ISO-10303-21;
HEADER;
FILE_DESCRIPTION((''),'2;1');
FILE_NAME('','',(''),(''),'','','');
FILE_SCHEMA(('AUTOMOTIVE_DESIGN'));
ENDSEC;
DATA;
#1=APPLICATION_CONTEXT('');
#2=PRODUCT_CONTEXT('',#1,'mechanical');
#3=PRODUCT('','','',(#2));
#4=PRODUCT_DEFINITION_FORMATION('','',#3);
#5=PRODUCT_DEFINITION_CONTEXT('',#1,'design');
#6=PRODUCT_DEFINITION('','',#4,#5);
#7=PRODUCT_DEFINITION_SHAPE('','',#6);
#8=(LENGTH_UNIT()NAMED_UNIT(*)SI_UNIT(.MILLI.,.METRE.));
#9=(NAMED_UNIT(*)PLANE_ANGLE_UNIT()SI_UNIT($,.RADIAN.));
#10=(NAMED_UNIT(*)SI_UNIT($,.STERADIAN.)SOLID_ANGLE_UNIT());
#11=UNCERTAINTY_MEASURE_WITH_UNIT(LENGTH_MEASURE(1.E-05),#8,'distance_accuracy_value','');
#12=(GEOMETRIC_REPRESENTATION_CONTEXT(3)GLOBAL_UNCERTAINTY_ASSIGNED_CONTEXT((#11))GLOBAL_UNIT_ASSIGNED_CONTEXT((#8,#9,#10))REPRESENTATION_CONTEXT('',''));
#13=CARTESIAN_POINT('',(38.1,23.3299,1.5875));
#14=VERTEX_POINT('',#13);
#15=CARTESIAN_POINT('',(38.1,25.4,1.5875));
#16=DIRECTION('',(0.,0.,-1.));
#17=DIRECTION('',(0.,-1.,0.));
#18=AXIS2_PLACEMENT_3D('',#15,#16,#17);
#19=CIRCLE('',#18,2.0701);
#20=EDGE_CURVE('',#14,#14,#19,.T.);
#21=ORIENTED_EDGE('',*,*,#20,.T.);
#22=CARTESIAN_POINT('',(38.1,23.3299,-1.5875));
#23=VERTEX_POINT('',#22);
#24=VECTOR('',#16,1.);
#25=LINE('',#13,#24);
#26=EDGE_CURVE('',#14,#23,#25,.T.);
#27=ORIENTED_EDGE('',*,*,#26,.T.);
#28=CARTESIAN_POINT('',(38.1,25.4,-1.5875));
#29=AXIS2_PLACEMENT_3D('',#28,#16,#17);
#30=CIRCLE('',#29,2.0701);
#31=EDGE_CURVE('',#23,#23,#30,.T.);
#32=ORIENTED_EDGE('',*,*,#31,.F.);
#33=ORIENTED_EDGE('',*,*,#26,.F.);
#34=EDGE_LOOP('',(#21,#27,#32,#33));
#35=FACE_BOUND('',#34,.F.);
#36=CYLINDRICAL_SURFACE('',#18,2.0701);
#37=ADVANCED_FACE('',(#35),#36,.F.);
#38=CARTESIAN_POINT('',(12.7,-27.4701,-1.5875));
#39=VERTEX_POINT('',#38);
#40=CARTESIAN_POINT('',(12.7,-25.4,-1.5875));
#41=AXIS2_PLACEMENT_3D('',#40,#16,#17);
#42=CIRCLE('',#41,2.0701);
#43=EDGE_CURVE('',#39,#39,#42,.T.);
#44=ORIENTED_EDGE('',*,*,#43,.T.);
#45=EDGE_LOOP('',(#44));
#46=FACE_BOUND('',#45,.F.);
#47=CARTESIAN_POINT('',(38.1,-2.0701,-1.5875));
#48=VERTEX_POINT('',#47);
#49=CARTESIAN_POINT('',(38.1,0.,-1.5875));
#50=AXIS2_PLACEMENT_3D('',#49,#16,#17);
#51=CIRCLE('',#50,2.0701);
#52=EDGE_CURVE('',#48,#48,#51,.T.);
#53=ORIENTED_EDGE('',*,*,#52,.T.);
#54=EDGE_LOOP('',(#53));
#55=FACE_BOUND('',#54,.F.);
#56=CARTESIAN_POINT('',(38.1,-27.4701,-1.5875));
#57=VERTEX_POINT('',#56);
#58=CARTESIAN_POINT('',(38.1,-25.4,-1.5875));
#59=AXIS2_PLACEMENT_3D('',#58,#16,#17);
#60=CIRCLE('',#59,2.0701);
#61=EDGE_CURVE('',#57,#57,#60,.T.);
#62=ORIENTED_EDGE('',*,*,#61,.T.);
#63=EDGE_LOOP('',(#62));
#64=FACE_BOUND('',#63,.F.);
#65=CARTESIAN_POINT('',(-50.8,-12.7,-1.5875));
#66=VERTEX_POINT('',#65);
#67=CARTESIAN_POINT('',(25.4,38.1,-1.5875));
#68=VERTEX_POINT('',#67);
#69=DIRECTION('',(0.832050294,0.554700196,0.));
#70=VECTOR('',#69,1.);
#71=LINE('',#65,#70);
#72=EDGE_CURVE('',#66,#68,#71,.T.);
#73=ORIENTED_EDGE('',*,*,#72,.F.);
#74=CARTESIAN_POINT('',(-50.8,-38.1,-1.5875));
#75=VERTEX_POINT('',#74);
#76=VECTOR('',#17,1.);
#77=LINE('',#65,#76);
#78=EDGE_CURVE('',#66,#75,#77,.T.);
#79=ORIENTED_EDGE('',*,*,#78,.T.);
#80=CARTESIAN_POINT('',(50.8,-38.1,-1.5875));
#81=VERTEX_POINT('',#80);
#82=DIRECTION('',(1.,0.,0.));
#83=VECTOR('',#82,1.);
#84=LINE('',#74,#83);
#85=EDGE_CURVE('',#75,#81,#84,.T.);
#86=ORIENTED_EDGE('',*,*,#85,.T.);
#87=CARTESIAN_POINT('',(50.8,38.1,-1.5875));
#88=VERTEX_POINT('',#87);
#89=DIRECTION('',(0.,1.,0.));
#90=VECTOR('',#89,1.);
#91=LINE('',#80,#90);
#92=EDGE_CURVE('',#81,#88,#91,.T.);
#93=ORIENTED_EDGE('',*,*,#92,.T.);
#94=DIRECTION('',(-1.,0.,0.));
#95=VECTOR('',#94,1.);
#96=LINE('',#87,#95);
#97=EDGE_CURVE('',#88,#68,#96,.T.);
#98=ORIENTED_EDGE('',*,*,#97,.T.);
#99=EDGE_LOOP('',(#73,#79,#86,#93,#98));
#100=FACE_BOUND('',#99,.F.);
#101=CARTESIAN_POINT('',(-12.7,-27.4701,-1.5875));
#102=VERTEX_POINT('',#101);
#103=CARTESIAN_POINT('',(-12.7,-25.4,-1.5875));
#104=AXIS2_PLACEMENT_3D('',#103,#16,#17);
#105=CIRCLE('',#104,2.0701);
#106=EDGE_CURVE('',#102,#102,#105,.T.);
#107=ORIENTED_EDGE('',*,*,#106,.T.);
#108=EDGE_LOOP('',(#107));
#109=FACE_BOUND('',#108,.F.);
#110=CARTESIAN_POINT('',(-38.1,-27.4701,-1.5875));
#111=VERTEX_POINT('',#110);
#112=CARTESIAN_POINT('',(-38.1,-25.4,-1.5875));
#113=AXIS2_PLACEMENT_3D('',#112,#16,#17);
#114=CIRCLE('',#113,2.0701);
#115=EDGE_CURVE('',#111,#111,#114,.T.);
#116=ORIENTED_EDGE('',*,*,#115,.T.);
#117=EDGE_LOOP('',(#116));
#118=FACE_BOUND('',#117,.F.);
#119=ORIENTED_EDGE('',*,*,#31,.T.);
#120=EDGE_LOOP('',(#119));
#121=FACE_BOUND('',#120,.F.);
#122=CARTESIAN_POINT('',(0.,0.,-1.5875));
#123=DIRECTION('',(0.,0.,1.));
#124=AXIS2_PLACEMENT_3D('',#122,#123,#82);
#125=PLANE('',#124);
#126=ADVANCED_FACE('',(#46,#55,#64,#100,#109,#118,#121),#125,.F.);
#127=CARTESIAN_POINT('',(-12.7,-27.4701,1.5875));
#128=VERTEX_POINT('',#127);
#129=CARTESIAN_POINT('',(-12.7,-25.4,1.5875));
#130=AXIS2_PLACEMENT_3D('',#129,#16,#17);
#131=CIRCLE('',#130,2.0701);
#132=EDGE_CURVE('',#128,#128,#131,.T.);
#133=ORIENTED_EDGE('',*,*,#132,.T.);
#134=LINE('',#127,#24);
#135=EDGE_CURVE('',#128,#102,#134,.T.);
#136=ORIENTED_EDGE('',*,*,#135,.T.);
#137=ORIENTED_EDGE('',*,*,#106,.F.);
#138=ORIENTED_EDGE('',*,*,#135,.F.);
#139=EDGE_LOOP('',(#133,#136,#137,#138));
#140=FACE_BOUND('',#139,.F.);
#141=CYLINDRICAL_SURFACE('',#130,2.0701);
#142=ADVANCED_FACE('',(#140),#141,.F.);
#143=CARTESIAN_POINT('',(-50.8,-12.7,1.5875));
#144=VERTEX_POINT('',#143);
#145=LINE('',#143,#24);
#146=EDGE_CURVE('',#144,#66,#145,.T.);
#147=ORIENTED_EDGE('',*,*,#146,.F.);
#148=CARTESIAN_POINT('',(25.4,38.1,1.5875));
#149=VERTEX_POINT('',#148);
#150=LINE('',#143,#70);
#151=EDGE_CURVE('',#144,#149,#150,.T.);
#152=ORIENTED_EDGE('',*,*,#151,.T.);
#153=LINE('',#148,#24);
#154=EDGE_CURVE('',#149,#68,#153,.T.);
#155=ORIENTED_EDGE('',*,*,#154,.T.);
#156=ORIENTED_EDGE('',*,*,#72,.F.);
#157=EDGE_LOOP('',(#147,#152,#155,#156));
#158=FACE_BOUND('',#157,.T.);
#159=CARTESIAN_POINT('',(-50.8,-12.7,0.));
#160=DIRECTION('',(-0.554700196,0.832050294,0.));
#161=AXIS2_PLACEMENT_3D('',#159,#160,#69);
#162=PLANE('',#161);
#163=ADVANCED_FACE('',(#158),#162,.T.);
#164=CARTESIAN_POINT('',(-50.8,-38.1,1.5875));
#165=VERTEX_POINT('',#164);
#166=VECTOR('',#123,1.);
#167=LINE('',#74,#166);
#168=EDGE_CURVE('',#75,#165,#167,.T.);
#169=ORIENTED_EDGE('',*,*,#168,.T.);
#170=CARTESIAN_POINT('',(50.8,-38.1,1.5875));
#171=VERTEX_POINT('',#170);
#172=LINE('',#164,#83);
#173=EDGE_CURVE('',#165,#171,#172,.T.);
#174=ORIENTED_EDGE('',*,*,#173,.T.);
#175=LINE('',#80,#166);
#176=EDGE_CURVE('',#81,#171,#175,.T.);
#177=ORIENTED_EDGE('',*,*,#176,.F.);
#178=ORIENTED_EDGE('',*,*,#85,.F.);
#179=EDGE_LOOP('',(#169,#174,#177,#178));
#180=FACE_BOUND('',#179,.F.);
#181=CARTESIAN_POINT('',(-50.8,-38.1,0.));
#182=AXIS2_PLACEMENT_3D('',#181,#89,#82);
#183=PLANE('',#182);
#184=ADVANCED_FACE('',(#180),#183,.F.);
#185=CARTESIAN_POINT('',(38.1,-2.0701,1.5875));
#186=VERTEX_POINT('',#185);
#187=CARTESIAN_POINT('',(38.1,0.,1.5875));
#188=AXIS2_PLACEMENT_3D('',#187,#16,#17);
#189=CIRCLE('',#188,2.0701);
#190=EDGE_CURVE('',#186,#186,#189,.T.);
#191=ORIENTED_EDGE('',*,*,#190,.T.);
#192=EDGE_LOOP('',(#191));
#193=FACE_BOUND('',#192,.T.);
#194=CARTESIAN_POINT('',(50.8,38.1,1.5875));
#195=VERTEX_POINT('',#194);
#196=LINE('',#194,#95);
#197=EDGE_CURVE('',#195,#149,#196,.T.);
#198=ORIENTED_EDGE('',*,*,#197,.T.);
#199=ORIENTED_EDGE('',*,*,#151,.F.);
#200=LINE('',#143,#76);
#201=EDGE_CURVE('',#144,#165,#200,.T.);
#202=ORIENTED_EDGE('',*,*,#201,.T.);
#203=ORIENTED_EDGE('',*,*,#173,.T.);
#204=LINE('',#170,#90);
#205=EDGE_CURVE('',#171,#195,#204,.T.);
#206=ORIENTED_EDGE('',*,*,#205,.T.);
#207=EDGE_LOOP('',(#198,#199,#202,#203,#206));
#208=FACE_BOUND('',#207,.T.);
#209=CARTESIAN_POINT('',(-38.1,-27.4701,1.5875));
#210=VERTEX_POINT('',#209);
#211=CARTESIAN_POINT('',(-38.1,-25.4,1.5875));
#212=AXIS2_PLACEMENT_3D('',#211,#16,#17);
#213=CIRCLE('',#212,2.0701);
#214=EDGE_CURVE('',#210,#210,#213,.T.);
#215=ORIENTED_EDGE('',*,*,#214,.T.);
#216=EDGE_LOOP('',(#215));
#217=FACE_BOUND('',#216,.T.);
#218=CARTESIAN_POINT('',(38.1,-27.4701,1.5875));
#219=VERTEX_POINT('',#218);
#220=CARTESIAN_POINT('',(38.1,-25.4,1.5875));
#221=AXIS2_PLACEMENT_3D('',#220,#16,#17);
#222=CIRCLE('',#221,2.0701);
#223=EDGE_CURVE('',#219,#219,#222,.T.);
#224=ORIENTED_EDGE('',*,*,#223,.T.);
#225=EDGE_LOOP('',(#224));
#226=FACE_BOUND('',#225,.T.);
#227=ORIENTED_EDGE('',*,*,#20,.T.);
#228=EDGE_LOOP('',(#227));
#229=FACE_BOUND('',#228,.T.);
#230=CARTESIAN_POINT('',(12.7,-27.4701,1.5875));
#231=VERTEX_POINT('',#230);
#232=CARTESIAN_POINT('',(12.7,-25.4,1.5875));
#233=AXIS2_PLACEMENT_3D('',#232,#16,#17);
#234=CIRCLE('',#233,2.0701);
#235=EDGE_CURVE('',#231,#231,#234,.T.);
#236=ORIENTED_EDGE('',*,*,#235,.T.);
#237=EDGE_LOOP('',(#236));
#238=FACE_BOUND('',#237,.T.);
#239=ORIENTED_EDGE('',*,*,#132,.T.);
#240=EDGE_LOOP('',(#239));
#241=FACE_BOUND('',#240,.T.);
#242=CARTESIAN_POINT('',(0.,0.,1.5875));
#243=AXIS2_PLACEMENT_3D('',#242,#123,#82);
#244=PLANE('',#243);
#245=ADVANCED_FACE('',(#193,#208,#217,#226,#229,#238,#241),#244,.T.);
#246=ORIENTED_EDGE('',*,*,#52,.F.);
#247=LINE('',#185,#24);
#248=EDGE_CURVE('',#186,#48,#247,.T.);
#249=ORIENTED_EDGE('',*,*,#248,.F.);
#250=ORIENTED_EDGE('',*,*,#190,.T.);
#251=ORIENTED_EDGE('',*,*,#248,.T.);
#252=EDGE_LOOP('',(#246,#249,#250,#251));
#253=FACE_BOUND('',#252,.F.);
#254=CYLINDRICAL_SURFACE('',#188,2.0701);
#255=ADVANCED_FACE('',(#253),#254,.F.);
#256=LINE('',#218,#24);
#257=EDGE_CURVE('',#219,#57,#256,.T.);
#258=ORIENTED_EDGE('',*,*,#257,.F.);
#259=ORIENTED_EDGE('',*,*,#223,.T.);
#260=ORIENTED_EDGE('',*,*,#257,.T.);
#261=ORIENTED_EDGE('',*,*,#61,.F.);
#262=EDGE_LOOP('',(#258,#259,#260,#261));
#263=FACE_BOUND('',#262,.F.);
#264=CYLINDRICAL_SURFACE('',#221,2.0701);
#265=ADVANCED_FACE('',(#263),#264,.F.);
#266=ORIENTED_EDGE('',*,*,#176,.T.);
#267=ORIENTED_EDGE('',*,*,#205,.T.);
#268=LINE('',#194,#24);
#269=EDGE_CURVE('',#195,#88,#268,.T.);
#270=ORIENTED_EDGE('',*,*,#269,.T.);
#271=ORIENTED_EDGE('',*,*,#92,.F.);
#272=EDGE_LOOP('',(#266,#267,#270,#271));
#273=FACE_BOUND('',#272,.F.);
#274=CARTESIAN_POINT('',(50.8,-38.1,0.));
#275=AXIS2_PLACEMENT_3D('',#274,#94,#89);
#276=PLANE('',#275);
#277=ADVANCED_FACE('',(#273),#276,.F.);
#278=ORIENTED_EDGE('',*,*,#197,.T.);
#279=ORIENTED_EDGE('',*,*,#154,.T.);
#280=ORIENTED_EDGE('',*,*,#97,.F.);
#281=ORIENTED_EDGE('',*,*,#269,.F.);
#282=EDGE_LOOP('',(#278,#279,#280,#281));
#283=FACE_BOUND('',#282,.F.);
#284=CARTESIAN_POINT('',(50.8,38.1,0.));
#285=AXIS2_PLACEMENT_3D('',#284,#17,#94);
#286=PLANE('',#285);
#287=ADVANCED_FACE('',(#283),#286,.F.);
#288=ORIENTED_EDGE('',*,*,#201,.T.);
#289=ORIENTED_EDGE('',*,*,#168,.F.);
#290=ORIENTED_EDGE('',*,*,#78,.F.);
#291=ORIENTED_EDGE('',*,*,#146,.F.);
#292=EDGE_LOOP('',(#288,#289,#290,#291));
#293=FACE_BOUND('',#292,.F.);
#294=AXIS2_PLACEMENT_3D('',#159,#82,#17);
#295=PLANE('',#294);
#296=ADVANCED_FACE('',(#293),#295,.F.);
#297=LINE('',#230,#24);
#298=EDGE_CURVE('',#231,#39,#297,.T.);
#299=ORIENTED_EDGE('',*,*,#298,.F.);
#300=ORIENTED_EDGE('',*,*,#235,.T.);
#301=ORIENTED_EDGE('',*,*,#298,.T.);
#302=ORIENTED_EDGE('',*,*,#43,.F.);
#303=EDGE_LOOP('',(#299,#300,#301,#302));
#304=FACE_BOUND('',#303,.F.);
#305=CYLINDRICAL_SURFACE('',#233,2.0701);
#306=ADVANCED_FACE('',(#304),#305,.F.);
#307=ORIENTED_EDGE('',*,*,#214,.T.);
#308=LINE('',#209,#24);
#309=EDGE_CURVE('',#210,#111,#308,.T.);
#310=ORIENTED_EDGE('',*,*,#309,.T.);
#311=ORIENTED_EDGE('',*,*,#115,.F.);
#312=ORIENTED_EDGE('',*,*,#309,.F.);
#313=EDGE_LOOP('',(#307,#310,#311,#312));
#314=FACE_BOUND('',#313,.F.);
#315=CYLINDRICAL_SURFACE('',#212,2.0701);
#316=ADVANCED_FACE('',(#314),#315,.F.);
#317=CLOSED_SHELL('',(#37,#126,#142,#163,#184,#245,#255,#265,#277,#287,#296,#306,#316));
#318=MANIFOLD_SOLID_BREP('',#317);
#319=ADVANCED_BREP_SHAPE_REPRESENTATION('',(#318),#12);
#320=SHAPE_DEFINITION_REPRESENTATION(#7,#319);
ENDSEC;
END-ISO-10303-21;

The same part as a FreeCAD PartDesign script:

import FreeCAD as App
import Part
import Sketcher
Q = App.Units.Quantity

doc = App.newDocument("Part")
body = doc.addObject("PartDesign::Body", "Body")

sketch1 = body.newObject("Sketcher::SketchObject", "Sketch")
sketch1.AttachmentSupport = (doc.getObject("XY_Plane"), [""])
sketch1.MapMode = "FlatFace"
sketch1.addGeometry(Part.LineSegment(App.Vector(-51, -13, 0), App.Vector(-51, -38, 0)), False)
sketch1.addGeometry(Part.LineSegment(App.Vector(-51, -38, 0), App.Vector(51, -38, 0)), False)
sketch1.addGeometry(Part.LineSegment(App.Vector(51, -38, 0), App.Vector(51, 38, 0)), False)
sketch1.addGeometry(Part.LineSegment(App.Vector(51, 38, 0), App.Vector(25, 38, 0)), False)
sketch1.addGeometry(Part.LineSegment(App.Vector(25, 38, 0), App.Vector(-51, -13, 0)), False)
sketch1.addConstraint(Sketcher.Constraint("Coincident", 0, 2, 1, 1))
sketch1.addConstraint(Sketcher.Constraint("Coincident", 1, 2, 2, 1))
sketch1.addConstraint(Sketcher.Constraint("Coincident", 2, 2, 3, 1))
sketch1.addConstraint(Sketcher.Constraint("Coincident", 3, 2, 4, 1))
sketch1.addConstraint(Sketcher.Constraint("Coincident", 4, 2, 0, 1))
sketch1.addConstraint(Sketcher.Constraint("Vertical", 0))
sketch1.addConstraint(Sketcher.Constraint("Horizontal", 1))
sketch1.addConstraint(Sketcher.Constraint("Vertical", 2))
sketch1.addConstraint(Sketcher.Constraint("Horizontal", 3))
sketch1.addConstraint(Sketcher.Constraint("Symmetric", 0, 2, 2, 2, -1, 1))
sketch1.addConstraint(Sketcher.Constraint("Equal", 3, 0))
sketch1.addConstraint(Sketcher.Constraint("DistanceX", 1, 1, 1, 2, Q("4 in")))
sketch1.addConstraint(Sketcher.Constraint("DistanceX", 3, 2, 3, 1, Q("1 in")))
sketch1.addConstraint(Sketcher.Constraint("DistanceY", 2, 1, 2, 2, Q("3 in")))
pad1 = body.newObject("PartDesign::Pad", "Pad")
pad1.Profile = sketch1
pad1.Length = Q("0.125 in")
pad1.Midplane = True

sketch2 = body.newObject("Sketcher::SketchObject", "Sketch001")
sketch2.AttachmentSupport = (doc.getObject("XY_Plane"), [""])
sketch2.MapMode = "FlatFace"
sketch2.AttachmentOffset = App.Placement(App.Vector(0, 0, 0.0625 * 25.4), App.Rotation())
sketch2.addGeometry(Part.Circle(App.Vector(38.1, 25.4, 0), App.Vector(0, 0, 1), 2.1), False)
sketch2.addGeometry(Part.Circle(App.Vector(38.1, 0, 0), App.Vector(0, 0, 1), 2.1), False)
sketch2.addGeometry(Part.Circle(App.Vector(38.1, -25.4, 0), App.Vector(0, 0, 1), 2.1), False)
sketch2.addGeometry(Part.Circle(App.Vector(12.7, -25.4, 0), App.Vector(0, 0, 1), 2.1), False)
sketch2.addGeometry(Part.Circle(App.Vector(-12.7, -25.4, 0), App.Vector(0, 0, 1), 2.1), False)
sketch2.addGeometry(Part.Circle(App.Vector(-38.1, -25.4, 0), App.Vector(0, 0, 1), 2.1), False)
sketch2.addConstraint(Sketcher.Constraint("Equal", 0, 1))
sketch2.addConstraint(Sketcher.Constraint("Equal", 1, 2))
sketch2.addConstraint(Sketcher.Constraint("Equal", 2, 3))
sketch2.addConstraint(Sketcher.Constraint("Equal", 3, 4))
sketch2.addConstraint(Sketcher.Constraint("Equal", 4, 5))
sketch2.addConstraint(Sketcher.Constraint("Symmetric", 0, 3, 5, 3, -1, 1))
sketch2.addConstraint(Sketcher.Constraint("Symmetric", 3, 3, 4, 3, -2))
sketch2.addConstraint(Sketcher.Constraint("Symmetric", 2, 3, 5, 3, -2))
sketch2.addConstraint(Sketcher.Constraint("PointOnObject", 1, 3, -1))
sketch2.addConstraint(Sketcher.Constraint("Horizontal", 2, 3, 3, 3))
sketch2.addConstraint(Sketcher.Constraint("Vertical", 0, 3, 1, 3))
sketch2.addConstraint(Sketcher.Constraint("Diameter", 0, Q("0.163 in")))
sketch2.addConstraint(Sketcher.Constraint("DistanceY", -1, 1, 0, 3, Q("1 in")))
sketch2.addConstraint(Sketcher.Constraint("DistanceX", 3, 3, 2, 3, Q("1 in")))
sketch2.addConstraint(Sketcher.Constraint("DistanceX", 4, 3, 3, 3, Q("1 in")))
doc.recompute()
hole = body.newObject("PartDesign::Hole", "Hole")
hole.Profile = sketch2
hole.ThreadType = "None"
hole.Diameter = Q("0.163 in")
hole.DepthType = "ThroughAll"

doc.recompute()
